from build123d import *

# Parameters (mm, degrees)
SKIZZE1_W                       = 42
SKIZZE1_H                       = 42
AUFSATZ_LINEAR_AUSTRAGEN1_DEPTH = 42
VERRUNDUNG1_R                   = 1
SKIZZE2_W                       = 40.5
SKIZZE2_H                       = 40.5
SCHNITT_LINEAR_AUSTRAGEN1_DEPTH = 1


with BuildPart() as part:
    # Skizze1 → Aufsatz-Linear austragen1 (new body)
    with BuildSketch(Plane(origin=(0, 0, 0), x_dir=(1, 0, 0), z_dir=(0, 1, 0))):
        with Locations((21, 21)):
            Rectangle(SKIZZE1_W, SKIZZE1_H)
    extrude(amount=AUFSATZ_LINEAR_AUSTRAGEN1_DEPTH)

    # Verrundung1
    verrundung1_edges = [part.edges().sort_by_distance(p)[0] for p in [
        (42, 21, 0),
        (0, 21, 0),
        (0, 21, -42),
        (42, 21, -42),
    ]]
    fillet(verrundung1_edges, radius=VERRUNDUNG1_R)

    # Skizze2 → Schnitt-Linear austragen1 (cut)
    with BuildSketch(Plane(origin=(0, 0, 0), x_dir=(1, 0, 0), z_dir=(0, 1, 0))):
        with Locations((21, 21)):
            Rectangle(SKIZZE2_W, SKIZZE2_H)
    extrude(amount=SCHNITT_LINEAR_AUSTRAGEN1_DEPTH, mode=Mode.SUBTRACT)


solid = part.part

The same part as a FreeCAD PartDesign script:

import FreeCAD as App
import Part
import Sketcher

V = App.Vector


def edges_at(feature, points):
    """Names of the edges that pass closest to the given points."""
    edges = feature.Shape.Edges
    near = lambda p: min(range(len(edges)), key=lambda i: edges[i].distToShape(Part.Vertex(*p))[0])
    return sorted({f"Edge{near(p) + 1}" for p in points})


def add_polygon(sketch, points):
    """Adds a closed chain of lines whose ends are joined by coincident constraints."""
    first, n = sketch.GeometryCount, len(points)
    for a, b in zip(points, points[1:] + points[:1]):
        sketch.addGeometry(Part.LineSegment(App.Vector(*a, 0), App.Vector(*b, 0)), False)
    for i in range(n):
        sketch.addConstraint(Sketcher.Constraint("Coincident", first + i, 2, first + (i + 1) % n, 1))

doc = App.newDocument("Part")
body = doc.addObject("PartDesign::Body", "Body")

# Sketch on XZ plane
sketch1 = body.newObject("Sketcher::SketchObject", "Sketch")
sketch1.AttachmentSupport = (doc.getObject("XZ_Plane"), [""])
sketch1.MapMode = "FlatFace"
add_polygon(sketch1, [(0, -42), (0, 0), (42, 0), (42, -42)])  # lines 0-3
sketch1.addConstraint(Sketcher.Constraint("Vertical", 0))
sketch1.addConstraint(Sketcher.Constraint("Horizontal", 1))
sketch1.addConstraint(Sketcher.Constraint("Vertical", 2))
sketch1.addConstraint(Sketcher.Constraint("Horizontal", 3))
sketch1.addConstraint(Sketcher.Constraint("Coincident", 0, 2, -1, 1))
sketch1.addConstraint(Sketcher.Constraint("Equal", 3, 0))
sketch1.addConstraint(Sketcher.Constraint("DistanceX", 1, 1, 1, 2, 42.0))
pad1 = body.newObject("PartDesign::Pad", "Pad")
pad1.Profile = sketch1
pad1.Length = 42
pad1.Reversed = True
doc.recompute()

fillet = body.newObject("PartDesign::Fillet", "Fillet")
fillet.Base = (pad1, edges_at(pad1, [
    (42, 21, 0),
    (0, 21, 0),
    (0, 21, -42),
    (42, 21, -42),
]))
fillet.Radius = 1

# Sketch on XZ plane
sketch2 = body.newObject("Sketcher::SketchObject", "Sketch001")
sketch2.AttachmentSupport = (doc.getObject("XZ_Plane"), [""])
sketch2.MapMode = "FlatFace"
add_polygon(sketch2, [(1, -41), (1, -1), (41, -1), (41, -41)])  # lines 0-3
sketch2.addConstraint(Sketcher.Constraint("Vertical", 0))
sketch2.addConstraint(Sketcher.Constraint("Horizontal", 1))
sketch2.addConstraint(Sketcher.Constraint("Vertical", 2))
sketch2.addConstraint(Sketcher.Constraint("Horizontal", 3))
sketch2.addConstraint(Sketcher.Constraint("Equal", 3, 0))
sketch2.addConstraint(Sketcher.Constraint("DistanceX", 1, 1, 1, 2, 40.5))
sketch2.addConstraint(Sketcher.Constraint("DistanceX", -1, 1, 0, 2, 0.75))
sketch2.addConstraint(Sketcher.Constraint("DistanceY", 0, 2, -1, 1, 0.75))
pocket1 = body.newObject("PartDesign::Pocket", "Pocket")
pocket1.Profile = sketch2
pocket1.Length = 1

doc.recompute()
